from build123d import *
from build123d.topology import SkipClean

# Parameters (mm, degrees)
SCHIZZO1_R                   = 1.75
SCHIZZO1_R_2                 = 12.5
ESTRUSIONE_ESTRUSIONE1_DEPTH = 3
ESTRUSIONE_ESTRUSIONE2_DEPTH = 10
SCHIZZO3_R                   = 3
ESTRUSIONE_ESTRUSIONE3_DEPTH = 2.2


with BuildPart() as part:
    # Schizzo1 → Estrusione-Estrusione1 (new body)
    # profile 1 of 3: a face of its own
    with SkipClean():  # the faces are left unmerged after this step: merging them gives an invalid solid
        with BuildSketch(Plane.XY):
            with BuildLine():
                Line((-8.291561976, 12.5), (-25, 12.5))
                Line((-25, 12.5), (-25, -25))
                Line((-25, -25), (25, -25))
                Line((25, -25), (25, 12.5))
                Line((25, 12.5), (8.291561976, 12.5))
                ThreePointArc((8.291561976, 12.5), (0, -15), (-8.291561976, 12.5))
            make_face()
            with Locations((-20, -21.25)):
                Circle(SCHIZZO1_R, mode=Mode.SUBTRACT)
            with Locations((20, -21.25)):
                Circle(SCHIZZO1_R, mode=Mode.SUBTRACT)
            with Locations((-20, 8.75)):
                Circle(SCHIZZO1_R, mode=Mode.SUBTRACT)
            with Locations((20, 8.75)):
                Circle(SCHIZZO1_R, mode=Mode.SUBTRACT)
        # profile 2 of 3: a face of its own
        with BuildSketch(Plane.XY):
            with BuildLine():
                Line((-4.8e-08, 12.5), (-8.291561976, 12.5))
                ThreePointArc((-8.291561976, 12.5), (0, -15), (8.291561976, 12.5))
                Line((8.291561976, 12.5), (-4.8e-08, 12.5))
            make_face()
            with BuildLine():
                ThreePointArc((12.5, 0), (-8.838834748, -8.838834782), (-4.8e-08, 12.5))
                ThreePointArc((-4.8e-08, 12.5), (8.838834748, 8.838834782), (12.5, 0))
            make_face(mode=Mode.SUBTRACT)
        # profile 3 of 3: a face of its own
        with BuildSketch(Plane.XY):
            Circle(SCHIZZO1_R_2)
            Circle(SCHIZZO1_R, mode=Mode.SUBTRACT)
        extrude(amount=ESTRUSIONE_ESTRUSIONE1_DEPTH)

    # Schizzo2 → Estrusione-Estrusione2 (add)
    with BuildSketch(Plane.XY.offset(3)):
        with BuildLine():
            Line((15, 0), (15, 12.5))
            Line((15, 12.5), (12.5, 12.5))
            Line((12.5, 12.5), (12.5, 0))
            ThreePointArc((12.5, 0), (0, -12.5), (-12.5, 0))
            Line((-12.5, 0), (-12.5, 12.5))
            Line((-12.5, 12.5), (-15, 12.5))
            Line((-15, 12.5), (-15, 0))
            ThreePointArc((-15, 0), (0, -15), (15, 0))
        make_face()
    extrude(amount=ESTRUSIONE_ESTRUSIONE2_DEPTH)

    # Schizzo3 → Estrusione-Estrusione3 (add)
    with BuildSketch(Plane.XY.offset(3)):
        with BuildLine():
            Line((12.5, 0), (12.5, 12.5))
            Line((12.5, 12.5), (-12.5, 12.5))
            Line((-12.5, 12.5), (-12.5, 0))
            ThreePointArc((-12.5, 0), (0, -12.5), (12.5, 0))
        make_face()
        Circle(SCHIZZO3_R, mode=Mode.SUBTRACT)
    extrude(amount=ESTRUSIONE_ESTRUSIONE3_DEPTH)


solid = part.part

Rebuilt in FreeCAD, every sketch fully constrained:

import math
import FreeCAD as App
import Part
import Sketcher


def add_polygon(sketch, points):
    """Adds a closed chain of lines whose ends are joined by coincident constraints."""
    first, n = sketch.GeometryCount, len(points)
    for a, b in zip(points, points[1:] + points[:1]):
        sketch.addGeometry(Part.LineSegment(App.Vector(*a, 0), App.Vector(*b, 0)), False)
    for i in range(n):
        sketch.addConstraint(Sketcher.Constraint("Coincident", first + i, 2, first + (i + 1) % n, 1))

doc = App.newDocument("Part")
body = doc.addObject("PartDesign::Body", "Body")

# Sketch on XY plane
sketch1 = body.newObject("Sketcher::SketchObject", "Sketch")
sketch1.AttachmentSupport = (doc.getObject("XY_Plane"), [""])
sketch1.MapMode = "FlatFace"
add_polygon(sketch1, [(-25, 12.5), (-25, -25), (25, -25), (25, 12.5)])  # lines 0-3
sketch1.addGeometry(Part.Circle(App.Vector(-20, -21.25, 0), App.Vector(0, 0, 1), 1.75), False)  # 4
sketch1.addGeometry(Part.Circle(App.Vector(20, -21.25, 0), App.Vector(0, 0, 1), 1.75), False)  # 5
sketch1.addGeometry(Part.Circle(App.Vector(-20, 8.75, 0), App.Vector(0, 0, 1), 1.75), False)  # 6
sketch1.addGeometry(Part.Circle(App.Vector(20, 8.75, 0), App.Vector(0, 0, 1), 1.75), False)  # 7
sketch1.addGeometry(Part.Circle(App.Vector(0, 0, 0), App.Vector(0, 0, 1), 1.75), False)  # 8
sketch1.addConstraint([
    Sketcher.Constraint("Vertical", 0),
    Sketcher.Constraint("Horizontal", 1),
    Sketcher.Constraint("Vertical", 2),
    Sketcher.Constraint("Horizontal", 3),
    Sketcher.Constraint("Coincident", 8, 3, -1, 1),
    Sketcher.Constraint("Equal", 4, 5),
    Sketcher.Constraint("Equal", 5, 6),
    Sketcher.Constraint("Equal", 6, 7),
    Sketcher.Constraint("Equal", 7, 8),
    Sketcher.Constraint("Symmetric", 4, 3, 5, 3, -2),
    Sketcher.Constraint("Symmetric", 6, 3, 7, 3, -2),
    Sketcher.Constraint("Vertical", 4, 3, 6, 3),
    Sketcher.Constraint("Diameter", 4, 3.5),
    Sketcher.Constraint("DistanceX", 1, 1, 1, 2, 50.0),
    Sketcher.Constraint("DistanceY", 0, 2, 0, 1, 37.5),
    Sketcher.Constraint("DistanceX", 4, 3, -1, 1, 20.0),
    Sketcher.Constraint("DistanceX", 0, 2, -1, 1, 25.0),
    Sketcher.Constraint("DistanceY", 0, 2, -1, 1, 25.0),
    Sketcher.Constraint("DistanceY", 4, 3, 6, 3, 30.0),
    Sketcher.Constraint("DistanceY", 4, 3, -1, 1, 21.25),
])
pad1 = body.newObject("PartDesign::Pad", "Pad")
pad1.Profile = sketch1
pad1.Length = 3

# Sketch on XY plane
sketch2 = body.newObject("Sketcher::SketchObject", "Sketch001")
sketch2.AttachmentSupport = (doc.getObject("XY_Plane"), [""])
sketch2.MapMode = "FlatFace"
sketch2.AttachmentOffset = App.Placement(App.Vector(0, 0, 3), App.Rotation())
sketch2.addGeometry([
    Part.LineSegment(App.Vector(15, 0, 0), App.Vector(15, 12.5, 0)),  # 0
    Part.LineSegment(App.Vector(15, 12.5, 0), App.Vector(12.5, 12.5, 0)),  # 1
    Part.LineSegment(App.Vector(12.5, 12.5, 0), App.Vector(12.5, 0, 0)),  # 2
    Part.ArcOfCircle(Part.Circle(App.Vector(0, 0, 0), App.Vector(0, 0, 1), 12.5), math.radians(180), math.radians(360)),  # 3
    Part.LineSegment(App.Vector(-12.5, 0, 0), App.Vector(-12.5, 12.5, 0)),  # 4
    Part.LineSegment(App.Vector(-12.5, 12.5, 0), App.Vector(-15, 12.5, 0)),  # 5
    Part.LineSegment(App.Vector(-15, 12.5, 0), App.Vector(-15, 0, 0)),  # 6
    Part.ArcOfCircle(Part.Circle(App.Vector(0, 0, 0), App.Vector(0, 0, 1), 15), math.radians(180), math.radians(360)),  # 7
], False)
sketch2.addConstraint([
    Sketcher.Constraint("Coincident", 0, 2, 1, 1),
    Sketcher.Constraint("Coincident", 1, 2, 2, 1),
    Sketcher.Constraint("Tangent", 2, 2, 3, 2),
    Sketcher.Constraint("Tangent", 3, 1, 4, 1),
    Sketcher.Constraint("Coincident", 4, 2, 5, 1),
    Sketcher.Constraint("Coincident", 5, 2, 6, 1),
    Sketcher.Constraint("Tangent", 6, 2, 7, 1),
    Sketcher.Constraint("Tangent", 7, 2, 0, 1),
    Sketcher.Constraint("Vertical", 0),
    Sketcher.Constraint("Horizontal", 1),
    Sketcher.Constraint("Vertical", 2),
    Sketcher.Constraint("Vertical", 4),
    Sketcher.Constraint("Horizontal", 5),
    Sketcher.Constraint("Vertical", 6),
    Sketcher.Constraint("Coincident", 3, 3, -1, 1),
    Sketcher.Constraint("Coincident", 7, 3, -1, 1),
    Sketcher.Constraint("Horizontal", 1, 2, 4, 2),
    Sketcher.Constraint("Radius", 7, 15.0),
    Sketcher.Constraint("Radius", 3, 12.5),
    Sketcher.Constraint("DistanceY", 0, 1, 0, 2, 12.5),
])
pad2 = body.newObject("PartDesign::Pad", "Pad001")
pad2.Profile = sketch2
pad2.Length = 10

# Sketch on XY plane
sketch3 = body.newObject("Sketcher::SketchObject", "Sketch002")
sketch3.AttachmentSupport = (doc.getObject("XY_Plane"), [""])
sketch3.MapMode = "FlatFace"
sketch3.AttachmentOffset = App.Placement(App.Vector(0, 0, 3), App.Rotation())
sketch3.addGeometry([
    Part.LineSegment(App.Vector(12.5, 0, 0), App.Vector(12.5, 12.5, 0)),  # 0
    Part.LineSegment(App.Vector(12.5, 12.5, 0), App.Vector(-12.5, 12.5, 0)),  # 1
    Part.LineSegment(App.Vector(-12.5, 12.5, 0), App.Vector(-12.5, 0, 0)),  # 2
    Part.ArcOfCircle(Part.Circle(App.Vector(0, 0, 0), App.Vector(0, 0, 1), 12.5), math.radians(180), math.radians(360)),  # 3
    Part.Circle(App.Vector(0, 0, 0), App.Vector(0, 0, 1), 3),  # 4
], False)
sketch3.addConstraint([
    Sketcher.Constraint("Coincident", 0, 2, 1, 1),
    Sketcher.Constraint("Coincident", 1, 2, 2, 1),
    Sketcher.Constraint("Tangent", 2, 2, 3, 1),
    Sketcher.Constraint("Tangent", 3, 2, 0, 1),
    Sketcher.Constraint("Vertical", 0),
    Sketcher.Constraint("Horizontal", 1),
    Sketcher.Constraint("Vertical", 2),
    Sketcher.Constraint("Coincident", 3, 3, -1, 1),
    Sketcher.Constraint("Coincident", 4, 3, -1, 1),
    Sketcher.Constraint("Diameter", 4, 6.0),
    Sketcher.Constraint("Radius", 3, 12.5),
    Sketcher.Constraint("DistanceY", 0, 1, 0, 2, 12.5),
])
pad3 = body.newObject("PartDesign::Pad", "Pad002")
pad3.Profile = sketch3
pad3.Length = 2.2

doc.recompute()
